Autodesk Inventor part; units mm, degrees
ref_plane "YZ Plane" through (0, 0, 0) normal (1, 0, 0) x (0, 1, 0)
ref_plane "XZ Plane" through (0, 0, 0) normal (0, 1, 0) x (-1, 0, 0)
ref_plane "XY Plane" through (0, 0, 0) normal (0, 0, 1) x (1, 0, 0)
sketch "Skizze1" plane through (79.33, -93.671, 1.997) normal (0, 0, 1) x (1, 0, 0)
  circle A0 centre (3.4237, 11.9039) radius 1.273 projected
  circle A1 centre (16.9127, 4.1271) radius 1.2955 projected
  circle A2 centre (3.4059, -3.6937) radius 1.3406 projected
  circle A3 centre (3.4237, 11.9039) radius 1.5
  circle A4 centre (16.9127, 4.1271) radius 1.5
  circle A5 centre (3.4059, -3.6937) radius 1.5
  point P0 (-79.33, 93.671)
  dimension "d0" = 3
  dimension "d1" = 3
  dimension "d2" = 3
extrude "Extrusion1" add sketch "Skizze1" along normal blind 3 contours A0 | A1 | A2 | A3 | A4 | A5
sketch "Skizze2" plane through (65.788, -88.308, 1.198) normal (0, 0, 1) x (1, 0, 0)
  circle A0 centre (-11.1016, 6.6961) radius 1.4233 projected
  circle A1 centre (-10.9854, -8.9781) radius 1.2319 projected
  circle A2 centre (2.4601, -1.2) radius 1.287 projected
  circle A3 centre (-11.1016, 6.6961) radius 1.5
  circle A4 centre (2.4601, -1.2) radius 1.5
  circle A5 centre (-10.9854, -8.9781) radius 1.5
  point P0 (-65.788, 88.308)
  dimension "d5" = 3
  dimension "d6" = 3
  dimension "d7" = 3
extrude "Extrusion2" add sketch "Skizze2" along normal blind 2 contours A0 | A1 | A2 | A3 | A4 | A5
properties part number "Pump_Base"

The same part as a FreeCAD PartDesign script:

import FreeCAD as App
import Part
import Sketcher
from FreeCAD import Vector
Q = App.Units.Quantity

doc = App.newDocument("Part")
params = doc.addObject("Spreadsheet::Sheet", "Params")
for row, (alias, value) in enumerate([
    ("sketch1_diameter", "3 mm"),
    ("pad1_length", "3 mm"),
    ("sketch2_diameter", "3 mm"),
    ("pad2_length", "2 mm"),
], start=1):
    params.set(f"A{row}", alias)
    params.set(f"B{row}", "=" + value)
    params.setAlias(f"B{row}", alias)

body = doc.addObject("PartDesign::Body", "Body")
body.AllowCompound = True

# Sketch on XY plane
sketch1 = body.newObject("Sketcher::SketchObject", "Sketch")
sketch1.AttachmentSupport = (doc.getObject("XY_Plane"), [""])
sketch1.MapMode = "FlatFace"
sketch1.AttachmentOffset = App.Placement(Vector(0, 0, 1.997), App.Rotation())
sketch1.addGeometry(Part.Circle(Vector(82.8, -81.8, 0), Vector(0, 0, 1), 1.5), False)
sketch1.addGeometry(Part.Circle(Vector(96.2, -89.5, 0), Vector(0, 0, 1), 1.5), False)
sketch1.addGeometry(Part.Circle(Vector(82.7, -97.4, 0), Vector(0, 0, 1), 1.5), False)
sketch1.addConstraint(Sketcher.Constraint("Equal", 0, 1))
sketch1.addConstraint(Sketcher.Constraint("Equal", 1, 2))
sketch1.addConstraint(Sketcher.Constraint("Diameter", 0, Q("3 mm")))
sketch1.addConstraint(Sketcher.Constraint("DistanceY", 0, 3, -1, 1, Q("81.767 mm")))
sketch1.addConstraint(Sketcher.Constraint("DistanceY", 1, 3, -1, 1, Q("89.544 mm")))
sketch1.addConstraint(Sketcher.Constraint("DistanceX", -1, 1, 2, 3, Q("82.736 mm")))
sketch1.addConstraint(Sketcher.Constraint("DistanceX", 0, 3, 1, 3, Q("13.489 mm")))
sketch1.addConstraint(Sketcher.Constraint("DistanceX", -1, 1, 0, 3, Q("82.7537 mm")))
sketch1.addConstraint(Sketcher.Constraint("DistanceY", 2, 3, -1, 1, Q("97.3647 mm")))
sketch1.setExpression("Constraints[2]", "Params.sketch1_diameter")
pad1 = body.newObject("PartDesign::Pad", "Pad")
pad1.Profile = sketch1
pad1.setExpression("Length", "Params.pad1_length")

# Sketch on XY plane
sketch2 = body.newObject("Sketcher::SketchObject", "Sketch001")
sketch2.AttachmentSupport = (doc.getObject("XY_Plane"), [""])
sketch2.MapMode = "FlatFace"
sketch2.AttachmentOffset = App.Placement(Vector(0, 0, 1.198), App.Rotation())
sketch2.addGeometry(Part.Circle(Vector(54.7, -81.6, 0), Vector(0, 0, 1), 1.5), False)
sketch2.addGeometry(Part.Circle(Vector(54.8, -97.3, 0), Vector(0, 0, 1), 1.5), False)
sketch2.addGeometry(Part.Circle(Vector(68.2, -89.5, 0), Vector(0, 0, 1), 1.5), False)
sketch2.addConstraint(Sketcher.Constraint("Equal", 0, 1))
sketch2.addConstraint(Sketcher.Constraint("Equal", 1, 2))
sketch2.addConstraint(Sketcher.Constraint("Diameter", 0, Q("3 mm")))
sketch2.addConstraint(Sketcher.Constraint("DistanceY", 0, 3, -1, 1, Q("81.612 mm")))
sketch2.addConstraint(Sketcher.Constraint("DistanceY", 1, 3, -1, 1, Q("97.286 mm")))
sketch2.addConstraint(Sketcher.Constraint("DistanceX", -1, 1, 2, 3, Q("68.248 mm")))
sketch2.addConstraint(Sketcher.Constraint("DistanceY", 2, 3, -1, 1, Q("89.508 mm")))
sketch2.addConstraint(Sketcher.Constraint("DistanceX", -1, 1, 0, 3, Q("54.6864 mm")))
sketch2.addConstraint(Sketcher.Constraint("DistanceX", -1, 1, 1, 3, Q("54.8026 mm")))
sketch2.setExpression("Constraints[2]", "Params.sketch2_diameter")
pad2 = body.newObject("PartDesign::Pad", "Pad001")
pad2.Profile = sketch2
pad2.setExpression("Length", "Params.pad2_length")

doc.recompute()
